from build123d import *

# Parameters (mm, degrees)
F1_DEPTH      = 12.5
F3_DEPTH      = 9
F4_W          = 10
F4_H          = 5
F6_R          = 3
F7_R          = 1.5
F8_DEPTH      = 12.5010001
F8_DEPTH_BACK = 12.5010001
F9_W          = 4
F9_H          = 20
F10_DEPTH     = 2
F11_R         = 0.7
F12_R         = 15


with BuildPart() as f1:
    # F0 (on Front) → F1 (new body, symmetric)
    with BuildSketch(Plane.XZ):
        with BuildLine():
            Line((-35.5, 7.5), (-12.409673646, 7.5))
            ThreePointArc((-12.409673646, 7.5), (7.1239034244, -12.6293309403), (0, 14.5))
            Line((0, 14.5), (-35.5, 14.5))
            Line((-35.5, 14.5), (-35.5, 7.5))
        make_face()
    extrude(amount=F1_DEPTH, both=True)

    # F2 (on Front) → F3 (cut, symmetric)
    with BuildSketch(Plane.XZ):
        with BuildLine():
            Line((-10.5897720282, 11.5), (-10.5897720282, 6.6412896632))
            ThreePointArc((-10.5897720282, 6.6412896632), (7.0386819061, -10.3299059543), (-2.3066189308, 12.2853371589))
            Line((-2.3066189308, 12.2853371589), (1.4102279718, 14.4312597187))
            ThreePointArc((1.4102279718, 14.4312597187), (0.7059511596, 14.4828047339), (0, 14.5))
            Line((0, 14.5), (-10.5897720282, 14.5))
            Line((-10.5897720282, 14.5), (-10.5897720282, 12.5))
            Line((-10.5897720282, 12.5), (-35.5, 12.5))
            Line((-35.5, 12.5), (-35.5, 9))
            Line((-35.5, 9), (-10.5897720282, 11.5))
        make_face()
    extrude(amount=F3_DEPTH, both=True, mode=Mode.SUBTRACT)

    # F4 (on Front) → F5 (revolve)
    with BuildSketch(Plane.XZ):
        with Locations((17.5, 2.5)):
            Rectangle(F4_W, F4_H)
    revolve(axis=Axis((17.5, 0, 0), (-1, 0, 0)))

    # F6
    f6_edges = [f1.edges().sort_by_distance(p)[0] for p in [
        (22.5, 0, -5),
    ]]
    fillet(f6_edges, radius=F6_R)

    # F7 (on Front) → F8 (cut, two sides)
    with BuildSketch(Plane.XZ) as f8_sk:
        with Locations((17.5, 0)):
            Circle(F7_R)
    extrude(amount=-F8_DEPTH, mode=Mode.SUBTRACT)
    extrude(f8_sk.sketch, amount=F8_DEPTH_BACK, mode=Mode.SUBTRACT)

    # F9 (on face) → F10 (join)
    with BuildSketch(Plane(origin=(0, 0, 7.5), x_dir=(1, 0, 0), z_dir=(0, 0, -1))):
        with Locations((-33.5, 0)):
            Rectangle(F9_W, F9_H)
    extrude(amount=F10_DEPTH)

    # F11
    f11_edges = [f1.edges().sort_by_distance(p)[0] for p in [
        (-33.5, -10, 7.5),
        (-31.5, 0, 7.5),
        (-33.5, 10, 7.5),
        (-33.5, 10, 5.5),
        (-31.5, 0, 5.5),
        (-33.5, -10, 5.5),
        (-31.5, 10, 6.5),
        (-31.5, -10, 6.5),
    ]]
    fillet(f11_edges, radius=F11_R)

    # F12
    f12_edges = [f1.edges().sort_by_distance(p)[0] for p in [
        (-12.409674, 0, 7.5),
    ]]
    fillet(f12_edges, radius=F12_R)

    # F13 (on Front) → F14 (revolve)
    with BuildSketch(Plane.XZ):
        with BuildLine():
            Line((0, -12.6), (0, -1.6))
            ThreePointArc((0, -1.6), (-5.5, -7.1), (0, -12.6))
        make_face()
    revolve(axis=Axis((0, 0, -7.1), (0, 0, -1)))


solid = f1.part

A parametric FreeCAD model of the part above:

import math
import FreeCAD as App
import Part
import Sketcher

V = App.Vector
Q = App.Units.Quantity


def edges_at(feature, points):
    """Names of the edges that pass closest to the given points."""
    edges = feature.Shape.Edges
    near = lambda p: min(range(len(edges)), key=lambda i: edges[i].distToShape(Part.Vertex(*p))[0])
    return sorted({f"Edge{near(p) + 1}" for p in points})

doc = App.newDocument("Part")
body = doc.addObject("PartDesign::Body", "Body")

sketch1 = doc.addObject("Sketcher::SketchObject", "Sketch")
body.addObject(sketch1)
sketch1.AttachmentSupport = (doc.XZ_Plane, [""])
sketch1.MapMode = "FlatFace"
sketch1.addGeometry(Part.LineSegment(V(-35.5, 7.5, 0), V(-12.409674, 7.5, 0)), False)
sketch1.addGeometry(Part.ArcOfCircle(Part.Circle(V(0, 0, 0), V(0, 0, 1), 14.5), math.radians(148.85261), math.radians(450)), False)
sketch1.addGeometry(Part.LineSegment(V(0, 14.5, 0), V(-35.5, 14.5, 0)), False)
sketch1.addGeometry(Part.LineSegment(V(-35.5, 14.5, 0), V(-35.5, 7.5, 0)), False)
sketch1.addConstraint(Sketcher.Constraint("Coincident", 0, 2, 1, 1))
sketch1.addConstraint(Sketcher.Constraint("Tangent", 1, 2, 2, 1))
sketch1.addConstraint(Sketcher.Constraint("Coincident", 2, 2, 3, 1))
sketch1.addConstraint(Sketcher.Constraint("Coincident", 3, 2, 0, 1))
sketch1.addConstraint(Sketcher.Constraint("Horizontal", 0))
sketch1.addConstraint(Sketcher.Constraint("Horizontal", 2))
sketch1.addConstraint(Sketcher.Constraint("Vertical", 3))
sketch1.addConstraint(Sketcher.Constraint("Coincident", 1, 3, -1, 1))
sketch1.addConstraint(Sketcher.Constraint("Radius", 1, Q("14.5 mm")))
sketch1.addConstraint(Sketcher.Constraint("DistanceY", 3, 2, 3, 1, Q("7 mm")))
sketch1.addConstraint(Sketcher.Constraint("DistanceX", 2, 2, 2, 1, Q("35.5 mm")))
pad1 = doc.addObject("PartDesign::Pad", "Pad")
body.addObject(pad1)
pad1.Profile = sketch1
pad1.Length = 25
pad1.Midplane = True

sketch2 = doc.addObject("Sketcher::SketchObject", "Sketch001")
body.addObject(sketch2)
sketch2.AttachmentSupport = (doc.XZ_Plane, [""])
sketch2.MapMode = "FlatFace"
sketch2.addGeometry(Part.LineSegment(V(-10.589772, 11.5, 0), V(-10.589772, 6.64129, 0)), False)
sketch2.addGeometry(Part.ArcOfCircle(Part.Circle(V(0, 0, 0), V(0, 0, 1), 12.5), math.radians(147.906453), math.radians(460.633703)), False)
sketch2.addGeometry(Part.LineSegment(V(-2.306619, 12.285337, 0), V(1.410228, 14.43126, 0)), False)
sketch2.addGeometry(Part.ArcOfCircle(Part.Circle(V(0, 0, 0), V(0, 0, 1), 14.5), math.radians(84.418756), math.radians(90)), False)
sketch2.addGeometry(Part.LineSegment(V(0, 14.5, 0), V(-10.589772, 14.5, 0)), False)
sketch2.addGeometry(Part.LineSegment(V(-10.589772, 14.5, 0), V(-10.589772, 12.5, 0)), False)
sketch2.addGeometry(Part.LineSegment(V(-10.589772, 12.5, 0), V(-35.5, 12.5, 0)), False)
sketch2.addGeometry(Part.LineSegment(V(-35.5, 12.5, 0), V(-35.5, 9, 0)), False)
sketch2.addGeometry(Part.LineSegment(V(-35.5, 9, 0), V(-10.589772, 11.5, 0)), False)
sketch2.addConstraint(Sketcher.Constraint("Coincident", 0, 2, 1, 1))
sketch2.addConstraint(Sketcher.Constraint("Coincident", 1, 2, 2, 1))
sketch2.addConstraint(Sketcher.Constraint("Coincident", 2, 2, 3, 1))
sketch2.addConstraint(Sketcher.Constraint("Tangent", 3, 2, 4, 1))
sketch2.addConstraint(Sketcher.Constraint("Coincident", 4, 2, 5, 1))
sketch2.addConstraint(Sketcher.Constraint("Coincident", 5, 2, 6, 1))
sketch2.addConstraint(Sketcher.Constraint("Coincident", 6, 2, 7, 1))
sketch2.addConstraint(Sketcher.Constraint("Coincident", 7, 2, 8, 1))
sketch2.addConstraint(Sketcher.Constraint("Coincident", 8, 2, 0, 1))
sketch2.addConstraint(Sketcher.Constraint("Vertical", 0))
sketch2.addConstraint(Sketcher.Constraint("Horizontal", 4))
sketch2.addConstraint(Sketcher.Constraint("Vertical", 5))
sketch2.addConstraint(Sketcher.Constraint("Horizontal", 6))
sketch2.addConstraint(Sketcher.Constraint("Vertical", 7))
sketch2.addConstraint(Sketcher.Constraint("Coincident", 1, 3, -1, 1))
sketch2.addConstraint(Sketcher.Constraint("Coincident", 3, 3, -1, 1))
sketch2.addConstraint(Sketcher.Constraint("Vertical", 0, 2, 4, 2))
sketch2.addConstraint(Sketcher.Constraint("Radius", 1, Q("12.5 mm")))
sketch2.addConstraint(Sketcher.Constraint("Radius", 3, Q("14.5 mm")))
sketch2.addConstraint(Sketcher.Constraint("DistanceY", 5, 2, 5, 1, Q("2 mm")))
sketch2.addConstraint(Sketcher.Constraint("Angle", 2, Q("30 deg")))
sketch2.addConstraint(Sketcher.Constraint("DistanceY", 7, 2, 7, 1, Q("3.5 mm")))
sketch2.addConstraint(Sketcher.Constraint("DistanceX", 0, 2, 2, 2, Q("12 mm")))
sketch2.addConstraint(Sketcher.Constraint("DistanceY", 8, 2, 5, 2, Q("1 mm")))
sketch2.addConstraint(Sketcher.Constraint("DistanceX", 6, 2, -1, 1, Q("35.5 mm")))
sketch2.addConstraint(Sketcher.Constraint("DistanceY", 0, 2, 0, 1, Q("4.85871 mm")))
pocket1 = doc.addObject("PartDesign::Pocket", "Pocket")
body.addObject(pocket1)
pocket1.Profile = sketch2
pocket1.Length = 18
pocket1.Midplane = True

sketch3 = doc.addObject("Sketcher::SketchObject", "Sketch002")
body.addObject(sketch3)
sketch3.AttachmentSupport = (doc.XZ_Plane, [""])
sketch3.MapMode = "FlatFace"
sketch3.addGeometry(Part.LineSegment(V(12.5, 5, 0), V(12.5, 0, 0)), False)
sketch3.addGeometry(Part.LineSegment(V(12.5, 0, 0), V(22.5, 0, 0)), False)
sketch3.addGeometry(Part.LineSegment(V(22.5, 0, 0), V(22.5, 5, 0)), False)
sketch3.addGeometry(Part.LineSegment(V(22.5, 5, 0), V(12.5, 5, 0)), False)
sketch3.addConstraint(Sketcher.Constraint("Coincident", 0, 2, 1, 1))
sketch3.addConstraint(Sketcher.Constraint("Coincident", 1, 2, 2, 1))
sketch3.addConstraint(Sketcher.Constraint("Coincident", 2, 2, 3, 1))
sketch3.addConstraint(Sketcher.Constraint("Coincident", 3, 2, 0, 1))
sketch3.addConstraint(Sketcher.Constraint("Vertical", 0))
sketch3.addConstraint(Sketcher.Constraint("Horizontal", 1))
sketch3.addConstraint(Sketcher.Constraint("Vertical", 2))
sketch3.addConstraint(Sketcher.Constraint("Horizontal", 3))
sketch3.addConstraint(Sketcher.Constraint("PointOnObject", 0, 2, -1))
sketch3.addConstraint(Sketcher.Constraint("DistanceX", 1, 1, 1, 2, Q("10 mm")))
sketch3.addConstraint(Sketcher.Constraint("DistanceY", 0, 2, 0, 1, Q("5 mm")))
sketch3.addConstraint(Sketcher.Constraint("DistanceX", -1, 1, 0, 2, Q("12.5 mm")))
revolution = doc.addObject("PartDesign::Revolution", "Revolution")
body.addObject(revolution)
revolution.Profile = sketch3
revolution.ReferenceAxis = (sketch3, ["H_Axis"])
revolution.Angle = 360
doc.recompute()

fillet = doc.addObject("PartDesign::Fillet", "Fillet")
body.addObject(fillet)
fillet.Base = (revolution, edges_at(revolution, [(22.5, 0, -5)]))
fillet.Radius = 3

sketch4 = doc.addObject("Sketcher::SketchObject", "Sketch003")
body.addObject(sketch4)
sketch4.AttachmentSupport = (doc.XZ_Plane, [""])
sketch4.MapMode = "FlatFace"
sketch4.addGeometry(Part.Circle(V(17.5, 0, 0), V(0, 0, 1), 1.5), False)
sketch4.addConstraint(Sketcher.Constraint("PointOnObject", 0, 3, -1))
sketch4.addConstraint(Sketcher.Constraint("Diameter", 0, Q("3 mm")))
sketch4.addConstraint(Sketcher.Constraint("DistanceX", -1, 1, 0, 3, Q("17.5 mm")))
pocket2 = doc.addObject("PartDesign::Pocket", "Pocket001")
body.addObject(pocket2)
pocket2.Profile = sketch4
pocket2.Type = "ThroughAll"
pocket2.Midplane = True

sketch5 = doc.addObject("Sketcher::SketchObject", "Sketch004")
body.addObject(sketch5)
sketch5.AttachmentSupport = (doc.XY_Plane, [""])
sketch5.MapMode = "FlatFace"
sketch5.AttachmentOffset = App.Placement(V(0, 0, 7.5), App.Rotation())
sketch5.addGeometry(Part.LineSegment(V(-35.5, -10, 0), V(-35.5, 10, 0)), False)
sketch5.addGeometry(Part.LineSegment(V(-35.5, 10, 0), V(-31.5, 10, 0)), False)
sketch5.addGeometry(Part.LineSegment(V(-31.5, 10, 0), V(-31.5, -10, 0)), False)
sketch5.addGeometry(Part.LineSegment(V(-31.5, -10, 0), V(-35.5, -10, 0)), False)
sketch5.addConstraint(Sketcher.Constraint("Coincident", 0, 2, 1, 1))
sketch5.addConstraint(Sketcher.Constraint("Coincident", 1, 2, 2, 1))
sketch5.addConstraint(Sketcher.Constraint("Coincident", 2, 2, 3, 1))
sketch5.addConstraint(Sketcher.Constraint("Coincident", 3, 2, 0, 1))
sketch5.addConstraint(Sketcher.Constraint("Vertical", 0))
sketch5.addConstraint(Sketcher.Constraint("Horizontal", 1))
sketch5.addConstraint(Sketcher.Constraint("Vertical", 2))
sketch5.addConstraint(Sketcher.Constraint("Horizontal", 3))
sketch5.addConstraint(Sketcher.Constraint("DistanceX", 1, 1, 1, 2, Q("4 mm")))
sketch5.addConstraint(Sketcher.Constraint("DistanceY", 0, 1, 0, 2, Q("20 mm")))
sketch5.addConstraint(Sketcher.Constraint("DistanceY", -1, 1, 0, 2, Q("10 mm")))
sketch5.addConstraint(Sketcher.Constraint("DistanceX", 0, 2, -1, 1, Q("35.5 mm")))
pad2 = doc.addObject("PartDesign::Pad", "Pad001")
body.addObject(pad2)
pad2.Profile = sketch5
pad2.Length = 2
pad2.Reversed = True
doc.recompute()

fillet2 = doc.addObject("PartDesign::Fillet", "Fillet001")
body.addObject(fillet2)
fillet2.Base = (pad2, edges_at(pad2, [
    (-33.5, -10, 7.5),
    (-31.5, 0, 7.5),
    (-33.5, 10, 7.5),
    (-33.5, 10, 5.5),
    (-31.5, 0, 5.5),
    (-33.5, -10, 5.5),
    (-31.5, 10, 6.5),
    (-31.5, -10, 6.5),
]))
fillet2.Radius = 0.7
doc.recompute()

fillet3 = doc.addObject("PartDesign::Fillet", "Fillet002")
body.addObject(fillet3)
fillet3.Base = (fillet2, edges_at(fillet2, [(-12.41, 0, 7.5)]))
fillet3.Radius = 15

sketch6 = doc.addObject("Sketcher::SketchObject", "Sketch005")
body.addObject(sketch6)
sketch6.AttachmentSupport = (doc.XZ_Plane, [""])
sketch6.MapMode = "FlatFace"
sketch6.addGeometry(Part.LineSegment(V(0, -12.6, 0), V(0, -1.6, 0)), False)
sketch6.addGeometry(Part.ArcOfCircle(Part.Circle(V(0, -7.1, 0), V(0, 0, 1), 5.5), math.radians(90), math.radians(270)), False)
sketch6.addConstraint(Sketcher.Constraint("Coincident", 0, 1, 1, 2))
sketch6.addConstraint(Sketcher.Constraint("Coincident", 1, 1, 0, 2))
sketch6.addConstraint(Sketcher.Constraint("Vertical", 0))
sketch6.addConstraint(Sketcher.Constraint("PointOnObject", 1, 3, -2))
sketch6.addConstraint(Sketcher.Constraint("PointOnObject", 0, 1, -2))
sketch6.addConstraint(Sketcher.Constraint("Radius", 1, Q("5.5 mm")))
sketch6.addConstraint(Sketcher.Constraint("DistanceY", 1, 3, -1, 1, Q("7.1 mm")))
revolution2 = doc.addObject("PartDesign::Revolution", "Revolution001")
body.addObject(revolution2)
revolution2.Profile = sketch6
revolution2.ReferenceAxis = (sketch6, ["V_Axis"])
revolution2.Angle = 360

doc.recompute()
